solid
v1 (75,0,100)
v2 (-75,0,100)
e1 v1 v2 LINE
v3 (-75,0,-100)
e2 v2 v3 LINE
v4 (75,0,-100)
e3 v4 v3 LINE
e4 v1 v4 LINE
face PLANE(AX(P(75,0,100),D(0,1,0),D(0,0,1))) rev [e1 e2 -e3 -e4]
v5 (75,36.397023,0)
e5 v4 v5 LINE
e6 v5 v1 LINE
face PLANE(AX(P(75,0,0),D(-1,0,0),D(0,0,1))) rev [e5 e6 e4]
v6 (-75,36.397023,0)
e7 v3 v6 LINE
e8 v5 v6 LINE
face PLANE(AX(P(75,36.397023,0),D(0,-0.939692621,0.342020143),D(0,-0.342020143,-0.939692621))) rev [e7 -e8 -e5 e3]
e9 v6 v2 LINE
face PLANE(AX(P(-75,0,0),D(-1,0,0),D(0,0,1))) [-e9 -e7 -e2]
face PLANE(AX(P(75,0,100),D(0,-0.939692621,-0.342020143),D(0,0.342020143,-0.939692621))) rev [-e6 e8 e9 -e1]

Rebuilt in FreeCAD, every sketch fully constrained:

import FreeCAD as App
import Part
import Sketcher
Q = App.Units.Quantity

doc = App.newDocument("Part")
body = doc.addObject("PartDesign::Body", "Body")

sketch1 = body.newObject("Sketcher::SketchObject", "Sketch")
sketch1.AttachmentSupport = (doc.getObject("YZ_Plane"), [""])
sketch1.MapMode = "FlatFace"
sketch1.addGeometry([
    Part.LineSegment(App.Vector(0, 100, 0), App.Vector(0, -100, 0)),
    Part.LineSegment(App.Vector(0, -100, 0), App.Vector(36, 0, 0)),
    Part.LineSegment(App.Vector(36, 0, 0), App.Vector(0, 100, 0)),
], False)
sketch1.addConstraint([
    Sketcher.Constraint("Coincident", 0, 2, 1, 1),
    Sketcher.Constraint("Coincident", 1, 2, 2, 1),
    Sketcher.Constraint("Coincident", 2, 2, 0, 1),
    Sketcher.Constraint("Vertical", 0),
    Sketcher.Constraint("Symmetric", 0, 2, 2, 2, -1, 1),
    Sketcher.Constraint("PointOnObject", 1, 2, -1),
    Sketcher.Constraint("DistanceY", 0, 2, 0, 1, 200.0),
    Sketcher.Constraint("Angle", 1, Q("70 deg")),
])
pad1 = body.newObject("PartDesign::Pad", "Pad")
pad1.Profile = sketch1
pad1.Length = 150
pad1.Midplane = True

doc.recompute()
